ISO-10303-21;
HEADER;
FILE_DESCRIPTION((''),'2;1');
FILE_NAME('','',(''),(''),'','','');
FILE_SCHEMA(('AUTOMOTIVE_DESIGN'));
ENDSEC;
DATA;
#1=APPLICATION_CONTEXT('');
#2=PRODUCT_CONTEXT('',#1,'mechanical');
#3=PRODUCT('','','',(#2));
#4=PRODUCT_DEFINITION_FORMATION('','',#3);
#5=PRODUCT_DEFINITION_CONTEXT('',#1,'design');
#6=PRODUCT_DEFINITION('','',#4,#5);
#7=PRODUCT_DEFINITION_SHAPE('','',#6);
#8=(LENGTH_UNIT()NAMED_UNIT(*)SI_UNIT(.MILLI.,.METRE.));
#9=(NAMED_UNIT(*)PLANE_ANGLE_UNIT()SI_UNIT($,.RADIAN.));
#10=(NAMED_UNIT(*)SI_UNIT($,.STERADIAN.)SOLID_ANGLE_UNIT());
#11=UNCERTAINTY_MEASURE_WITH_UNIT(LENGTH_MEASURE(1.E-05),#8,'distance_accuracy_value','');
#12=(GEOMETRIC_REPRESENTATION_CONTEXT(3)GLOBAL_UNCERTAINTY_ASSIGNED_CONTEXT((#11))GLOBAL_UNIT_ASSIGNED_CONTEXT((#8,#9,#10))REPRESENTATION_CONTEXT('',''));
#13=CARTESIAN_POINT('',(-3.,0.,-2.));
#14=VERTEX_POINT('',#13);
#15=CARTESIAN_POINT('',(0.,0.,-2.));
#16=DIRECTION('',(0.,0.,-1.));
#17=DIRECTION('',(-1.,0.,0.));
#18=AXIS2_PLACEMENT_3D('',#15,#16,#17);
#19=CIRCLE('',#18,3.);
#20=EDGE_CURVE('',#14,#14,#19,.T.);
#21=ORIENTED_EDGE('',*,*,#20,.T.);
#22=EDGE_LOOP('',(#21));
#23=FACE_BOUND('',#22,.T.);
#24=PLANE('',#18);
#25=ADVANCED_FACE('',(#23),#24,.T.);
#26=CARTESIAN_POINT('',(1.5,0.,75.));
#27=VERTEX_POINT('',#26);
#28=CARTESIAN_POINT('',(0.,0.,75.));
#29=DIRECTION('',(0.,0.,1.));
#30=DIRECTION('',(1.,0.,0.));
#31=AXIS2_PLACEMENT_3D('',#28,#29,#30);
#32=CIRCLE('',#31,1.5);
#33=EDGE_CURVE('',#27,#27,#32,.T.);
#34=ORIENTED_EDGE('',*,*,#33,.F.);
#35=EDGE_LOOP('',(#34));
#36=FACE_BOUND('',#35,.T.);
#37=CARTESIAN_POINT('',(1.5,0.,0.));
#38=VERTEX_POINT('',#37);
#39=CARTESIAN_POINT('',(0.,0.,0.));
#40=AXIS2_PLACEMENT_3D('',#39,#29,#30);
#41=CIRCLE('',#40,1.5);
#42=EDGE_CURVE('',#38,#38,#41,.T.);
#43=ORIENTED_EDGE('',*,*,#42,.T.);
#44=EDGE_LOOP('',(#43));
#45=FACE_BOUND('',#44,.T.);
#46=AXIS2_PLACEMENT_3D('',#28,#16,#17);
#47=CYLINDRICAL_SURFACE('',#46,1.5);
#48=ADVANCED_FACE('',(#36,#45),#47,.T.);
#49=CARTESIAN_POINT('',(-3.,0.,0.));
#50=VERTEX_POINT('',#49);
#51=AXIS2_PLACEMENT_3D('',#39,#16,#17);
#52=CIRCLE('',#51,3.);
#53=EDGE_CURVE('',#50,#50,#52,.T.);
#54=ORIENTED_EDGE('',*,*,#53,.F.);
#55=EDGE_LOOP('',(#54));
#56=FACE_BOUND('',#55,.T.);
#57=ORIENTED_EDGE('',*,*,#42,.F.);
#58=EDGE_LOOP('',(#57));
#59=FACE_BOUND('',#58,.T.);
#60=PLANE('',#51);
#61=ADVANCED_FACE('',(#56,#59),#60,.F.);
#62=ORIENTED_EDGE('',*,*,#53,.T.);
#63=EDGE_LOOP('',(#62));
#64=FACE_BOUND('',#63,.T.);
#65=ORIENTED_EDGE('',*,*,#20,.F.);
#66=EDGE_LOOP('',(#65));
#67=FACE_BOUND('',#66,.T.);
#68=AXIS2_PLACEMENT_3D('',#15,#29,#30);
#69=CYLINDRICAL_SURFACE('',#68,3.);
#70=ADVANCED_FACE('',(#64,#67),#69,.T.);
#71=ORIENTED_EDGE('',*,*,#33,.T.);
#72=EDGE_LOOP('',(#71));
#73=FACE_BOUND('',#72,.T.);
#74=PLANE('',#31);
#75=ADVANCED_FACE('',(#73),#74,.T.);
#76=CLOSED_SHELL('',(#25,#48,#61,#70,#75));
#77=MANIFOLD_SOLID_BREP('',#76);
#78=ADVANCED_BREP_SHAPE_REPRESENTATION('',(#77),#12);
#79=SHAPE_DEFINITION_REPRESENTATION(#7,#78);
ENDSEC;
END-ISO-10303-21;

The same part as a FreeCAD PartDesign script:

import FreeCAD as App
import Part
import Sketcher
from FreeCAD import Vector
Q = App.Units.Quantity

doc = App.newDocument("Part")
body = doc.addObject("PartDesign::Body", "Body")

# Sketch on XY plane
sketch1 = body.newObject("Sketcher::SketchObject", "Sketch")
sketch1.AttachmentSupport = (doc.getObject("XY_Plane"), [""])
sketch1.MapMode = "FlatFace"
sketch1.addGeometry(Part.Circle(Vector(0, 0, 0), Vector(0, 0, 1), 1.5), False)
sketch1.addConstraint(Sketcher.Constraint("Coincident", 0, 3, -1, 1))
sketch1.addConstraint(Sketcher.Constraint("Diameter", 0, Q("3 mm")))
pad1 = body.newObject("PartDesign::Pad", "Pad")
pad1.Profile = sketch1
pad1.Length = 75

# Sketch on XY plane
sketch2 = body.newObject("Sketcher::SketchObject", "Sketch001")
sketch2.AttachmentSupport = (doc.getObject("XY_Plane"), [""])
sketch2.MapMode = "FlatFace"
sketch2.addGeometry(Part.Circle(Vector(0, 0, 0), Vector(0, 0, 1), 3), False)
sketch2.addConstraint(Sketcher.Constraint("Coincident", 0, 3, -1, 1))
sketch2.addConstraint(Sketcher.Constraint("Diameter", 0, Q("6 mm")))
pad2 = body.newObject("PartDesign::Pad", "Pad001")
pad2.Profile = sketch2
pad2.Length = 2
pad2.Reversed = True

doc.recompute()
